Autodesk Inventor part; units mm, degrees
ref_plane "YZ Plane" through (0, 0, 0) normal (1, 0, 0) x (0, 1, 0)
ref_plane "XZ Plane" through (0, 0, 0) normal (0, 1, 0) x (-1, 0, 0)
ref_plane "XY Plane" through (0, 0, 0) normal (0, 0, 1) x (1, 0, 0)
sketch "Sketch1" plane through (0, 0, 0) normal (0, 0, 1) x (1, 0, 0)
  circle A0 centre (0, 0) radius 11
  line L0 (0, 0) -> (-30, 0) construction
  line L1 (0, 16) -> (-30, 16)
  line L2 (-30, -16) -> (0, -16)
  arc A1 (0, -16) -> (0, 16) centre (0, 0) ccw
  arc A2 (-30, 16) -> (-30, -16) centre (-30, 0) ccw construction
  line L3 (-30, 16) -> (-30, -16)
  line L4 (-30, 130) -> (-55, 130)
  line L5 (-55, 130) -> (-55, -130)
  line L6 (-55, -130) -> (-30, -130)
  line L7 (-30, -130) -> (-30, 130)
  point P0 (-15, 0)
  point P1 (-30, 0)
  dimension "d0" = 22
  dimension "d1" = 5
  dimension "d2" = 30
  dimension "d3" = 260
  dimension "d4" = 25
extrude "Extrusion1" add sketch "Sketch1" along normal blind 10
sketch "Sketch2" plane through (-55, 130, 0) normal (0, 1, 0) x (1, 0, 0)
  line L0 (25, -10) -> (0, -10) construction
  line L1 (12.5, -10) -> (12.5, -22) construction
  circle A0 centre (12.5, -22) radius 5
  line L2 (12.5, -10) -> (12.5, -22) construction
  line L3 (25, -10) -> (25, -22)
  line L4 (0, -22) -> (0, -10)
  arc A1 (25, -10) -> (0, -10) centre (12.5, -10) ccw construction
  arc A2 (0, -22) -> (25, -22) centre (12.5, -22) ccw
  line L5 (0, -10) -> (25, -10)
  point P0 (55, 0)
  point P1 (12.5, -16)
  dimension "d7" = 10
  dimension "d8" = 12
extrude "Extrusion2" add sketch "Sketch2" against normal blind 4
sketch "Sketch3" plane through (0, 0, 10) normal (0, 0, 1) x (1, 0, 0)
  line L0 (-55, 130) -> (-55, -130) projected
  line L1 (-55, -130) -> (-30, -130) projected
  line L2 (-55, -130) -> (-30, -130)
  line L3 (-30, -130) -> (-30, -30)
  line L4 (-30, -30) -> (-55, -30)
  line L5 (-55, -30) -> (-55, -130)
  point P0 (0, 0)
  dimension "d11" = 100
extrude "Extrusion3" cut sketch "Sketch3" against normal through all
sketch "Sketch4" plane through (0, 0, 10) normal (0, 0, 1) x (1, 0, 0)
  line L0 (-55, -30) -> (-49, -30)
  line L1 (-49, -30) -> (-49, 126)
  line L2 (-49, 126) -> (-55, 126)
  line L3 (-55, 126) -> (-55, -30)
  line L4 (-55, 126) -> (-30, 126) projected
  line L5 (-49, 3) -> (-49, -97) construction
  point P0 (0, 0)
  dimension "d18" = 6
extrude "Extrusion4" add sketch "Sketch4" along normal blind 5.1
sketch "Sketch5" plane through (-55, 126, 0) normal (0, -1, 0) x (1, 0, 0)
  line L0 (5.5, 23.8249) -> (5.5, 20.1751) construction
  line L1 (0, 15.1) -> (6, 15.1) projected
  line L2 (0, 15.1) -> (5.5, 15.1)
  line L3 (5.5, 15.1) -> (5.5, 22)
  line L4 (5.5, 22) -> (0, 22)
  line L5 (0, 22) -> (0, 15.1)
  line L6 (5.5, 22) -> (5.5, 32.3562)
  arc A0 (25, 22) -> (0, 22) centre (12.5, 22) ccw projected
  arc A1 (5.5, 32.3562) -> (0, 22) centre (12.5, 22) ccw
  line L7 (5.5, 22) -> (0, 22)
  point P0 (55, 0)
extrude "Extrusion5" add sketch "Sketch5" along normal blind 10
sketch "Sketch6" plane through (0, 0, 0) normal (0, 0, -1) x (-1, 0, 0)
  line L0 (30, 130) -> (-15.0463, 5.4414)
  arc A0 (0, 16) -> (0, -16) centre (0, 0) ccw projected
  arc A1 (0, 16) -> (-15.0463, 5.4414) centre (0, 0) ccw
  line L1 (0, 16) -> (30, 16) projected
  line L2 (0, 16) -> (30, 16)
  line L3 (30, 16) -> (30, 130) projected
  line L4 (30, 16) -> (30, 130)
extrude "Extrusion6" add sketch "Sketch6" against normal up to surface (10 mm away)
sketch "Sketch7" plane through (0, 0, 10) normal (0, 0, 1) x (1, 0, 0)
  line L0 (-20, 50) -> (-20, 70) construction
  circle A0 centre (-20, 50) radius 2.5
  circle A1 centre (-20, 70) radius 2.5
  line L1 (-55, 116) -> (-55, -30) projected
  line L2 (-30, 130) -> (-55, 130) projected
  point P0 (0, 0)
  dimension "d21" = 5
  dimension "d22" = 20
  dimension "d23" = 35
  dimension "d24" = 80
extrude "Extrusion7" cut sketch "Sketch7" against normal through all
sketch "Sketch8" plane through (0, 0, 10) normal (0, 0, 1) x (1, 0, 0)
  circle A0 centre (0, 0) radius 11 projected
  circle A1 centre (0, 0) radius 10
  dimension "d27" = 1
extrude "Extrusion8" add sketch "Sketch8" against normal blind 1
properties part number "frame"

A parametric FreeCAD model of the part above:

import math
import FreeCAD as App
import Part
import Sketcher


def add_polygon(sketch, points):
    """Adds a closed chain of lines whose ends are joined by coincident constraints."""
    first, n = sketch.GeometryCount, len(points)
    for a, b in zip(points, points[1:] + points[:1]):
        sketch.addGeometry(Part.LineSegment(App.Vector(*a, 0), App.Vector(*b, 0)), False)
    for i in range(n):
        sketch.addConstraint(Sketcher.Constraint("Coincident", first + i, 2, first + (i + 1) % n, 1))

doc = App.newDocument("Part")
body = doc.addObject("PartDesign::Body", "Body")

# Sketch on XY plane
sketch1 = body.newObject("Sketcher::SketchObject", "Sketch")
sketch1.AttachmentSupport = (doc.getObject("XY_Plane"), [""])
sketch1.MapMode = "FlatFace"
sketch1.addGeometry(Part.ArcOfCircle(Part.Circle(App.Vector(0, 0, 0), App.Vector(0, 0, 1), 16), math.radians(-90), math.radians(90)), False)
sketch1.addGeometry(Part.LineSegment(App.Vector(0, 16, 0), App.Vector(-30, 16, 0)), False)
sketch1.addGeometry(Part.LineSegment(App.Vector(-30, 16, 0), App.Vector(-30, 130, 0)), False)
sketch1.addGeometry(Part.LineSegment(App.Vector(-30, 130, 0), App.Vector(-55, 130, 0)), False)
sketch1.addGeometry(Part.LineSegment(App.Vector(-55, 130, 0), App.Vector(-55, -130, 0)), False)
sketch1.addGeometry(Part.LineSegment(App.Vector(-55, -130, 0), App.Vector(-30, -130, 0)), False)
sketch1.addGeometry(Part.LineSegment(App.Vector(-30, -130, 0), App.Vector(-30, -16, 0)), False)
sketch1.addGeometry(Part.LineSegment(App.Vector(-30, -16, 0), App.Vector(0, -16, 0)), False)
sketch1.addGeometry(Part.Circle(App.Vector(0, 0, 0), App.Vector(0, 0, 1), 11), False)
sketch1.addConstraint(Sketcher.Constraint("Tangent", 0, 2, 1, 1))
sketch1.addConstraint(Sketcher.Constraint("Coincident", 1, 2, 2, 1))
sketch1.addConstraint(Sketcher.Constraint("Coincident", 2, 2, 3, 1))
sketch1.addConstraint(Sketcher.Constraint("Coincident", 3, 2, 4, 1))
sketch1.addConstraint(Sketcher.Constraint("Coincident", 4, 2, 5, 1))
sketch1.addConstraint(Sketcher.Constraint("Coincident", 5, 2, 6, 1))
sketch1.addConstraint(Sketcher.Constraint("Coincident", 6, 2, 7, 1))
sketch1.addConstraint(Sketcher.Constraint("Tangent", 7, 2, 0, 1))
sketch1.addConstraint(Sketcher.Constraint("Horizontal", 1))
sketch1.addConstraint(Sketcher.Constraint("Vertical", 2))
sketch1.addConstraint(Sketcher.Constraint("Horizontal", 3))
sketch1.addConstraint(Sketcher.Constraint("Vertical", 4))
sketch1.addConstraint(Sketcher.Constraint("Horizontal", 5))
sketch1.addConstraint(Sketcher.Constraint("Vertical", 6))
sketch1.addConstraint(Sketcher.Constraint("Horizontal", 7))
sketch1.addConstraint(Sketcher.Constraint("Coincident", 0, 3, -1, 1))
sketch1.addConstraint(Sketcher.Constraint("Coincident", 8, 3, -1, 1))
sketch1.addConstraint(Sketcher.Constraint("Symmetric", 2, 2, 5, 2, -1))
sketch1.addConstraint(Sketcher.Constraint("Diameter", 8, 22.0))
sketch1.addConstraint(Sketcher.Constraint("DistanceX", 1, 2, 1, 1, 30.0))
sketch1.addConstraint(Sketcher.Constraint("DistanceX", 3, 2, 3, 1, 25.0))
sketch1.addConstraint(Sketcher.Constraint("DistanceY", 4, 2, 4, 1, 260.0))
sketch1.addConstraint(Sketcher.Constraint("Radius", 0, 16.0))
pad1 = body.newObject("PartDesign::Pad", "Pad")
pad1.Profile = sketch1
pad1.Length = 10

# Sketch on XZ plane
sketch2 = body.newObject("Sketcher::SketchObject", "Sketch001")
sketch2.AttachmentSupport = (doc.getObject("XZ_Plane"), [""])
sketch2.MapMode = "FlatFace"
sketch2.AttachmentOffset = App.Placement(App.Vector(0, 0, -130), App.Rotation())
sketch2.addGeometry(Part.LineSegment(App.Vector(-30, 22, 0), App.Vector(-30, 10, 0)), False)
sketch2.addGeometry(Part.LineSegment(App.Vector(-30, 10, 0), App.Vector(-55, 10, 0)), False)
sketch2.addGeometry(Part.LineSegment(App.Vector(-55, 10, 0), App.Vector(-55, 22, 0)), False)
sketch2.addGeometry(Part.ArcOfCircle(Part.Circle(App.Vector(-42.5, 22, 0), App.Vector(0, 0, 1), 12.5), math.radians(0), math.radians(180)), False)
sketch2.addGeometry(Part.Circle(App.Vector(-42.5, 22, 0), App.Vector(0, 0, 1), 5), False)
sketch2.addConstraint(Sketcher.Constraint("Coincident", 0, 2, 1, 1))
sketch2.addConstraint(Sketcher.Constraint("Coincident", 1, 2, 2, 1))
sketch2.addConstraint(Sketcher.Constraint("Tangent", 2, 2, 3, 2))
sketch2.addConstraint(Sketcher.Constraint("Tangent", 3, 1, 0, 1))
sketch2.addConstraint(Sketcher.Constraint("Vertical", 0))
sketch2.addConstraint(Sketcher.Constraint("Horizontal", 1))
sketch2.addConstraint(Sketcher.Constraint("Vertical", 2))
sketch2.addConstraint(Sketcher.Constraint("Coincident", 4, 3, 3, 3))
sketch2.addConstraint(Sketcher.Constraint("Diameter", 4, 10.0))
sketch2.addConstraint(Sketcher.Constraint("DistanceY", 0, 2, 0, 1, 12.0))
sketch2.addConstraint(Sketcher.Constraint("DistanceY", -1, 1, 0, 2, 10.0))
sketch2.addConstraint(Sketcher.Constraint("Radius", 3, 12.5))
sketch2.addConstraint(Sketcher.Constraint("DistanceX", 0, 2, -1, 1, 30.0))
pad2 = body.newObject("PartDesign::Pad", "Pad001")
pad2.Profile = sketch2
pad2.Length = 4

# Sketch on XY plane
sketch3 = body.newObject("Sketcher::SketchObject", "Sketch002")
sketch3.AttachmentSupport = (doc.getObject("XY_Plane"), [""])
sketch3.MapMode = "FlatFace"
sketch3.AttachmentOffset = App.Placement(App.Vector(0, 0, 10), App.Rotation())
add_polygon(sketch3, [(-30, -30), (-55, -30), (-55, -130), (-30, -130)])  # lines 0-3
sketch3.addConstraint(Sketcher.Constraint("Horizontal", 0))
sketch3.addConstraint(Sketcher.Constraint("Vertical", 1))
sketch3.addConstraint(Sketcher.Constraint("Horizontal", 2))
sketch3.addConstraint(Sketcher.Constraint("Vertical", 3))
sketch3.addConstraint(Sketcher.Constraint("DistanceY", 1, 2, 1, 1, 100.0))
sketch3.addConstraint(Sketcher.Constraint("DistanceX", 0, 2, 0, 1, 25.0))
sketch3.addConstraint(Sketcher.Constraint("DistanceX", 0, 2, -1, 1, 55.0))
sketch3.addConstraint(Sketcher.Constraint("DistanceY", 0, 2, -1, 1, 30.0))
pocket1 = body.newObject("PartDesign::Pocket", "Pocket")
pocket1.Profile = sketch3
pocket1.Type = "ThroughAll"

# Sketch on XY plane
sketch4 = body.newObject("Sketcher::SketchObject", "Sketch003")
sketch4.AttachmentSupport = (doc.getObject("XY_Plane"), [""])
sketch4.MapMode = "FlatFace"
sketch4.AttachmentOffset = App.Placement(App.Vector(0, 0, 10), App.Rotation())
add_polygon(sketch4, [(-55, 126), (-55, -30), (-49, -30), (-49, 126)])  # lines 0-3
sketch4.addConstraint(Sketcher.Constraint("Vertical", 0))
sketch4.addConstraint(Sketcher.Constraint("Horizontal", 1))
sketch4.addConstraint(Sketcher.Constraint("Vertical", 2))
sketch4.addConstraint(Sketcher.Constraint("Horizontal", 3))
sketch4.addConstraint(Sketcher.Constraint("DistanceX", 1, 1, 1, 2, 6.0))
sketch4.addConstraint(Sketcher.Constraint("DistanceY", 0, 2, 0, 1, 156.0))
sketch4.addConstraint(Sketcher.Constraint("DistanceX", 0, 2, -1, 1, 55.0))
sketch4.addConstraint(Sketcher.Constraint("DistanceY", 0, 2, -1, 1, 30.0))
pad3 = body.newObject("PartDesign::Pad", "Pad002")
pad3.Profile = sketch4
pad3.Length = 5.1

# Sketch on XZ plane
sketch5 = body.newObject("Sketcher::SketchObject", "Sketch004")
sketch5.AttachmentSupport = (doc.getObject("XZ_Plane"), [""])
sketch5.MapMode = "FlatFace"
sketch5.AttachmentOffset = App.Placement(App.Vector(0, 0, -126), App.Rotation())
sketch5.addGeometry(Part.LineSegment(App.Vector(-55, 22, 0), App.Vector(-55, 15.1, 0)), False)
sketch5.addGeometry(Part.LineSegment(App.Vector(-55, 15.1, 0), App.Vector(-49.5, 15.1, 0)), False)
sketch5.addGeometry(Part.LineSegment(App.Vector(-49.5, 15.1, 0), App.Vector(-49.5, 32.3562, 0)), False)
sketch5.addGeometry(Part.ArcOfCircle(Part.Circle(App.Vector(-42.5, 22, 0), App.Vector(0, 0, 1), 12.5), math.radians(124.055689), math.radians(180)), False)
sketch5.addConstraint(Sketcher.Constraint("Coincident", 0, 2, 1, 1))
sketch5.addConstraint(Sketcher.Constraint("Coincident", 1, 2, 2, 1))
sketch5.addConstraint(Sketcher.Constraint("Coincident", 2, 2, 3, 1))
sketch5.addConstraint(Sketcher.Constraint("Tangent", 3, 2, 0, 1))
sketch5.addConstraint(Sketcher.Constraint("Vertical", 0))
sketch5.addConstraint(Sketcher.Constraint("Horizontal", 1))
sketch5.addConstraint(Sketcher.Constraint("Vertical", 2))
sketch5.addConstraint(Sketcher.Constraint("Radius", 3, 12.5))
sketch5.addConstraint(Sketcher.Constraint("DistanceX", 1, 1, 1, 2, 5.5))
sketch5.addConstraint(Sketcher.Constraint("DistanceY", 0, 2, 0, 1, 6.9))
sketch5.addConstraint(Sketcher.Constraint("DistanceY", -1, 1, 3, 3, 22.0))
sketch5.addConstraint(Sketcher.Constraint("DistanceX", 0, 2, -1, 1, 55.0))
pad4 = body.newObject("PartDesign::Pad", "Pad003")
pad4.Profile = sketch5
pad4.Length = 10

# Sketch on XY plane
sketch6 = body.newObject("Sketcher::SketchObject", "Sketch005")
sketch6.AttachmentSupport = (doc.getObject("XY_Plane"), [""])
sketch6.MapMode = "FlatFace"
sketch6.addGeometry(Part.LineSegment(App.Vector(-30, 16, 0), App.Vector(-30, 130, 0)), False)
sketch6.addGeometry(Part.LineSegment(App.Vector(-30, 130, 0), App.Vector(15.0463, 5.4414, 0)), False)
sketch6.addGeometry(Part.ArcOfCircle(Part.Circle(App.Vector(0, 0, 0), App.Vector(0, 0, 1), 16), math.radians(19.882206), math.radians(90)), False)
sketch6.addGeometry(Part.LineSegment(App.Vector(0, 16, 0), App.Vector(-30, 16, 0)), False)
sketch6.addConstraint(Sketcher.Constraint("Coincident", 0, 2, 1, 1))
sketch6.addConstraint(Sketcher.Constraint("Tangent", 1, 2, 2, 1))
sketch6.addConstraint(Sketcher.Constraint("Tangent", 2, 2, 3, 1))
sketch6.addConstraint(Sketcher.Constraint("Coincident", 3, 2, 0, 1))
sketch6.addConstraint(Sketcher.Constraint("Vertical", 0))
sketch6.addConstraint(Sketcher.Constraint("Horizontal", 3))
sketch6.addConstraint(Sketcher.Constraint("Coincident", 2, 3, -1, 1))
sketch6.addConstraint(Sketcher.Constraint("Radius", 2, 16.0))
sketch6.addConstraint(Sketcher.Constraint("DistanceX", 3, 2, 3, 1, 30.0))
sketch6.addConstraint(Sketcher.Constraint("DistanceY", 0, 1, 0, 2, 114.0))
pad5 = body.newObject("PartDesign::Pad", "Pad004")
pad5.Profile = sketch6
pad5.Length = 10

# Sketch on XY plane
sketch7 = body.newObject("Sketcher::SketchObject", "Sketch006")
sketch7.AttachmentSupport = (doc.getObject("XY_Plane"), [""])
sketch7.MapMode = "FlatFace"
sketch7.AttachmentOffset = App.Placement(App.Vector(0, 0, 10), App.Rotation())
sketch7.addGeometry(Part.Circle(App.Vector(-20, 50, 0), App.Vector(0, 0, 1), 2.5), False)
sketch7.addGeometry(Part.Circle(App.Vector(-20, 70, 0), App.Vector(0, 0, 1), 2.5), False)
sketch7.addConstraint(Sketcher.Constraint("Equal", 0, 1))
sketch7.addConstraint(Sketcher.Constraint("Vertical", 0, 3, 1, 3))
sketch7.addConstraint(Sketcher.Constraint("Diameter", 0, 5.0))
sketch7.addConstraint(Sketcher.Constraint("DistanceX", 0, 3, -1, 1, 20.0))
sketch7.addConstraint(Sketcher.Constraint("DistanceY", 0, 3, 1, 3, 20.0))
sketch7.addConstraint(Sketcher.Constraint("DistanceY", -1, 1, 0, 3, 50.0))
pocket2 = body.newObject("PartDesign::Pocket", "Pocket001")
pocket2.Profile = sketch7
pocket2.Type = "ThroughAll"

# Sketch on XY plane
sketch8 = body.newObject("Sketcher::SketchObject", "Sketch007")
sketch8.AttachmentSupport = (doc.getObject("XY_Plane"), [""])
sketch8.MapMode = "FlatFace"
sketch8.AttachmentOffset = App.Placement(App.Vector(0, 0, 10), App.Rotation())
sketch8.addGeometry(Part.Circle(App.Vector(0, 0, 0), App.Vector(0, 0, 1), 11), False)
sketch8.addGeometry(Part.Circle(App.Vector(0, 0, 0), App.Vector(0, 0, 1), 10), False)
sketch8.addConstraint(Sketcher.Constraint("Coincident", 0, 3, -1, 1))
sketch8.addConstraint(Sketcher.Constraint("Coincident", 1, 3, -1, 1))
sketch8.addConstraint(Sketcher.Constraint("Diameter", 0, 22.0))
sketch8.addConstraint(Sketcher.Constraint("Diameter", 1, 20.0))
pad6 = body.newObject("PartDesign::Pad", "Pad005")
pad6.Profile = sketch8
pad6.Length = 1
pad6.Reversed = True

doc.recompute()
